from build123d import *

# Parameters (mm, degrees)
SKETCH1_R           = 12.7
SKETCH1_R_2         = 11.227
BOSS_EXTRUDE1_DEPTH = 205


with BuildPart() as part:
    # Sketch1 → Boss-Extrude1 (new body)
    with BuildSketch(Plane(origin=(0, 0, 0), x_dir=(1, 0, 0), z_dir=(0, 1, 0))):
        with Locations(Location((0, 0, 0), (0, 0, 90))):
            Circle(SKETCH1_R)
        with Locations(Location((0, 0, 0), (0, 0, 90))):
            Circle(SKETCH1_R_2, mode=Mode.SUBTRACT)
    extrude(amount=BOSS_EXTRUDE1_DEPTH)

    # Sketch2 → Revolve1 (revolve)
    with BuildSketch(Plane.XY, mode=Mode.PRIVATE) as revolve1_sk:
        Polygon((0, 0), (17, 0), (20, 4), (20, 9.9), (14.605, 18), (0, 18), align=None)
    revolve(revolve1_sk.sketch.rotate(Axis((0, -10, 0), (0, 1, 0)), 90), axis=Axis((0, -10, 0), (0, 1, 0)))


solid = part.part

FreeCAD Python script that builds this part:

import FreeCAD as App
import Part
import Sketcher
from FreeCAD import Vector
Q = App.Units.Quantity

doc = App.newDocument("Part")
params = doc.addObject("Spreadsheet::Sheet", "Params")
for row, (alias, value) in enumerate([
    ("sketch1_diameter", "25.4 mm"),
    ("pad1_length", "205 mm"),
    ("sketch2_width", "17 mm"),
    ("sketch2_height", "18 mm"),
    ("sketch2_length", "5 mm"),
    ("sketch2_height2", "5.9 mm"),
    ("revolution_angle", "360 deg"),
], start=1):
    params.set(f"A{row}", alias)
    params.set(f"B{row}", "=" + value)
    params.setAlias(f"B{row}", alias)

body = doc.addObject("PartDesign::Body", "Body")

sketch1 = doc.addObject("Sketcher::SketchObject", "Sketch")
body.addObject(sketch1)
sketch1.AttachmentSupport = (doc.XZ_Plane, [""])
sketch1.MapMode = "FlatFace"
sketch1.addGeometry([
    Part.Circle(Vector(0, 0, 0), Vector(0, 0, 1), 13),
    Part.Circle(Vector(0, 0, 0), Vector(0, 0, 1), 11),
], False)
sketch1.addConstraint([
    Sketcher.Constraint("Coincident", 0, 3, -1, 1),
    Sketcher.Constraint("Coincident", 1, 3, -1, 1),
    Sketcher.Constraint("Diameter", 0, Q("25.4 mm")),
    Sketcher.Constraint("Diameter", 1, Q("22.454 mm")),
])
sketch1.setExpression("Constraints[2]", "Params.sketch1_diameter")
pad1 = doc.addObject("PartDesign::Pad", "Pad")
body.addObject(pad1)
pad1.Profile = sketch1
pad1.setExpression("Length", "Params.pad1_length")
pad1.Reversed = True

sketch2 = doc.addObject("Sketcher::SketchObject", "Sketch001")
body.addObject(sketch2)
sketch2.AttachmentSupport = (doc.XY_Plane, [""])
sketch2.MapMode = "FlatFace"
sketch2.addGeometry([
    Part.LineSegment(Vector(0, 0, 0), Vector(17, 0, 0)),
    Part.LineSegment(Vector(17, 0, 0), Vector(20, 4, 0)),
    Part.LineSegment(Vector(20, 4, 0), Vector(20, 10, 0)),
    Part.LineSegment(Vector(20, 10, 0), Vector(15, 18, 0)),
    Part.LineSegment(Vector(15, 18, 0), Vector(0, 18, 0)),
    Part.LineSegment(Vector(0, 18, 0), Vector(0, 0, 0)),
], False)
sketch2.addConstraint([
    Sketcher.Constraint("Coincident", 0, 2, 1, 1),
    Sketcher.Constraint("Coincident", 1, 2, 2, 1),
    Sketcher.Constraint("Coincident", 2, 2, 3, 1),
    Sketcher.Constraint("Coincident", 3, 2, 4, 1),
    Sketcher.Constraint("Coincident", 4, 2, 5, 1),
    Sketcher.Constraint("Coincident", 5, 2, 0, 1),
    Sketcher.Constraint("Horizontal", 0),
    Sketcher.Constraint("Vertical", 2),
    Sketcher.Constraint("Horizontal", 4),
    Sketcher.Constraint("Vertical", 5),
    Sketcher.Constraint("Coincident", 5, 2, -1, 1),
    Sketcher.Constraint("DistanceX", 0, 1, 0, 2, Q("17 mm")),
    Sketcher.Constraint("DistanceY", 5, 2, 5, 1, Q("18 mm")),
    Sketcher.Constraint("Distance", 1, Q("5 mm")),
    Sketcher.Constraint("DistanceY", 2, 1, 2, 2, Q("5.9 mm")),
    Sketcher.Constraint("DistanceX", -1, 1, 1, 2, Q("20 mm")),
    Sketcher.Constraint("DistanceX", 4, 2, 4, 1, Q("14.605 mm")),
])
sketch2.setExpression("Constraints[11]", "Params.sketch2_width")
sketch2.setExpression("Constraints[12]", "Params.sketch2_height")
sketch2.setExpression("Constraints[13]", "Params.sketch2_length")
sketch2.setExpression("Constraints[14]", "Params.sketch2_height2")
revolution = doc.addObject("PartDesign::Revolution", "Revolution")
body.addObject(revolution)
revolution.Profile = sketch2
revolution.ReferenceAxis = (sketch2, ["V_Axis"])
revolution.setExpression("Angle", "Params.revolution_angle")

doc.recompute()
